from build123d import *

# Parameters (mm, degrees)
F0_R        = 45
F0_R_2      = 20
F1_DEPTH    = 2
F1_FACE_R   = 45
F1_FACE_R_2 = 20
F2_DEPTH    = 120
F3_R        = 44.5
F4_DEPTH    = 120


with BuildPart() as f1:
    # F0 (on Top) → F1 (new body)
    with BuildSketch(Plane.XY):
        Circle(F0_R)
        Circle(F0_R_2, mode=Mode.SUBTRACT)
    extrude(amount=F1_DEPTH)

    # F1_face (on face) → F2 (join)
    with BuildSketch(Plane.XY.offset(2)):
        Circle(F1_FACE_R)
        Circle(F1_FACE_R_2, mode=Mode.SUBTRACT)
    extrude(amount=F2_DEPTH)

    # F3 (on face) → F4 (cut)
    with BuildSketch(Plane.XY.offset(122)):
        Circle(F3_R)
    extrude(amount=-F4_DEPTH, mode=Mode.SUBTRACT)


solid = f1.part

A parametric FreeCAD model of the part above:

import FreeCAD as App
import Part
import Sketcher

doc = App.newDocument("Part")
params = doc.addObject("Spreadsheet::Sheet", "Params")
for row, (alias, value) in enumerate([
    ("sketch1_diameter", "90 mm"),
    ("sketch1_diameter2", "40 mm"),
    ("pad1_length", "2 mm"),
    ("sketch2_diameter", "90 mm"),
    ("sketch2_diameter2", "40 mm"),
    ("pad2_length", "120 mm"),
    ("sketch3_diameter", "89 mm"),
    ("pocket1_length", "120 mm"),
], start=1):
    params.set(f"A{row}", alias)
    params.set(f"B{row}", "=" + value)
    params.setAlias(f"B{row}", alias)

body = doc.addObject("PartDesign::Body", "Body")

# Sketch on XY plane
sketch1 = doc.addObject("Sketcher::SketchObject", "Sketch")
body.addObject(sketch1)
sketch1.AttachmentSupport = (doc.XY_Plane, [""])
sketch1.MapMode = "FlatFace"
sketch1.addGeometry([
    Part.Circle(App.Vector(0, 0, 0), App.Vector(0, 0, 1), 45),
    Part.Circle(App.Vector(0, 0, 0), App.Vector(0, 0, 1), 20),
], False)
sketch1.addConstraint([
    Sketcher.Constraint("Coincident", 0, 3, -1, 1),
    Sketcher.Constraint("Coincident", 1, 3, -1, 1),
    Sketcher.Constraint("Diameter", 0, 90.0),
    Sketcher.Constraint("Diameter", 1, 40.0),
])
sketch1.setExpression("Constraints[2]", "Params.sketch1_diameter")
sketch1.setExpression("Constraints[3]", "Params.sketch1_diameter2")
pad1 = doc.addObject("PartDesign::Pad", "Pad")
body.addObject(pad1)
pad1.Profile = sketch1
pad1.setExpression("Length", "Params.pad1_length")

# Sketch on XY plane
sketch2 = doc.addObject("Sketcher::SketchObject", "Sketch001")
body.addObject(sketch2)
sketch2.AttachmentSupport = (doc.XY_Plane, [""])
sketch2.MapMode = "FlatFace"
sketch2.AttachmentOffset = App.Placement(App.Vector(0, 0, 2), App.Rotation())
sketch2.addGeometry([
    Part.Circle(App.Vector(0, 0, 0), App.Vector(0, 0, 1), 45),
    Part.Circle(App.Vector(0, 0, 0), App.Vector(0, 0, 1), 20),
], False)
sketch2.addConstraint([
    Sketcher.Constraint("Coincident", 0, 3, -1, 1),
    Sketcher.Constraint("Coincident", 1, 3, -1, 1),
    Sketcher.Constraint("Diameter", 0, 90.0),
    Sketcher.Constraint("Diameter", 1, 40.0),
])
sketch2.setExpression("Constraints[2]", "Params.sketch2_diameter")
sketch2.setExpression("Constraints[3]", "Params.sketch2_diameter2")
pad2 = doc.addObject("PartDesign::Pad", "Pad001")
body.addObject(pad2)
pad2.Profile = sketch2
pad2.setExpression("Length", "Params.pad2_length")

# Sketch on XY plane
sketch3 = doc.addObject("Sketcher::SketchObject", "Sketch002")
body.addObject(sketch3)
sketch3.AttachmentSupport = (doc.XY_Plane, [""])
sketch3.MapMode = "FlatFace"
sketch3.AttachmentOffset = App.Placement(App.Vector(0, 0, 122), App.Rotation())
sketch3.addGeometry(Part.Circle(App.Vector(0, 0, 0), App.Vector(0, 0, 1), 44), False)
sketch3.addConstraint([
    Sketcher.Constraint("Coincident", 0, 3, -1, 1),
    Sketcher.Constraint("Diameter", 0, 89.0),
])
sketch3.setExpression("Constraints[1]", "Params.sketch3_diameter")
pocket1 = doc.addObject("PartDesign::Pocket", "Pocket")
body.addObject(pocket1)
pocket1.Profile = sketch3
pocket1.setExpression("Length", "Params.pocket1_length")

doc.recompute()
